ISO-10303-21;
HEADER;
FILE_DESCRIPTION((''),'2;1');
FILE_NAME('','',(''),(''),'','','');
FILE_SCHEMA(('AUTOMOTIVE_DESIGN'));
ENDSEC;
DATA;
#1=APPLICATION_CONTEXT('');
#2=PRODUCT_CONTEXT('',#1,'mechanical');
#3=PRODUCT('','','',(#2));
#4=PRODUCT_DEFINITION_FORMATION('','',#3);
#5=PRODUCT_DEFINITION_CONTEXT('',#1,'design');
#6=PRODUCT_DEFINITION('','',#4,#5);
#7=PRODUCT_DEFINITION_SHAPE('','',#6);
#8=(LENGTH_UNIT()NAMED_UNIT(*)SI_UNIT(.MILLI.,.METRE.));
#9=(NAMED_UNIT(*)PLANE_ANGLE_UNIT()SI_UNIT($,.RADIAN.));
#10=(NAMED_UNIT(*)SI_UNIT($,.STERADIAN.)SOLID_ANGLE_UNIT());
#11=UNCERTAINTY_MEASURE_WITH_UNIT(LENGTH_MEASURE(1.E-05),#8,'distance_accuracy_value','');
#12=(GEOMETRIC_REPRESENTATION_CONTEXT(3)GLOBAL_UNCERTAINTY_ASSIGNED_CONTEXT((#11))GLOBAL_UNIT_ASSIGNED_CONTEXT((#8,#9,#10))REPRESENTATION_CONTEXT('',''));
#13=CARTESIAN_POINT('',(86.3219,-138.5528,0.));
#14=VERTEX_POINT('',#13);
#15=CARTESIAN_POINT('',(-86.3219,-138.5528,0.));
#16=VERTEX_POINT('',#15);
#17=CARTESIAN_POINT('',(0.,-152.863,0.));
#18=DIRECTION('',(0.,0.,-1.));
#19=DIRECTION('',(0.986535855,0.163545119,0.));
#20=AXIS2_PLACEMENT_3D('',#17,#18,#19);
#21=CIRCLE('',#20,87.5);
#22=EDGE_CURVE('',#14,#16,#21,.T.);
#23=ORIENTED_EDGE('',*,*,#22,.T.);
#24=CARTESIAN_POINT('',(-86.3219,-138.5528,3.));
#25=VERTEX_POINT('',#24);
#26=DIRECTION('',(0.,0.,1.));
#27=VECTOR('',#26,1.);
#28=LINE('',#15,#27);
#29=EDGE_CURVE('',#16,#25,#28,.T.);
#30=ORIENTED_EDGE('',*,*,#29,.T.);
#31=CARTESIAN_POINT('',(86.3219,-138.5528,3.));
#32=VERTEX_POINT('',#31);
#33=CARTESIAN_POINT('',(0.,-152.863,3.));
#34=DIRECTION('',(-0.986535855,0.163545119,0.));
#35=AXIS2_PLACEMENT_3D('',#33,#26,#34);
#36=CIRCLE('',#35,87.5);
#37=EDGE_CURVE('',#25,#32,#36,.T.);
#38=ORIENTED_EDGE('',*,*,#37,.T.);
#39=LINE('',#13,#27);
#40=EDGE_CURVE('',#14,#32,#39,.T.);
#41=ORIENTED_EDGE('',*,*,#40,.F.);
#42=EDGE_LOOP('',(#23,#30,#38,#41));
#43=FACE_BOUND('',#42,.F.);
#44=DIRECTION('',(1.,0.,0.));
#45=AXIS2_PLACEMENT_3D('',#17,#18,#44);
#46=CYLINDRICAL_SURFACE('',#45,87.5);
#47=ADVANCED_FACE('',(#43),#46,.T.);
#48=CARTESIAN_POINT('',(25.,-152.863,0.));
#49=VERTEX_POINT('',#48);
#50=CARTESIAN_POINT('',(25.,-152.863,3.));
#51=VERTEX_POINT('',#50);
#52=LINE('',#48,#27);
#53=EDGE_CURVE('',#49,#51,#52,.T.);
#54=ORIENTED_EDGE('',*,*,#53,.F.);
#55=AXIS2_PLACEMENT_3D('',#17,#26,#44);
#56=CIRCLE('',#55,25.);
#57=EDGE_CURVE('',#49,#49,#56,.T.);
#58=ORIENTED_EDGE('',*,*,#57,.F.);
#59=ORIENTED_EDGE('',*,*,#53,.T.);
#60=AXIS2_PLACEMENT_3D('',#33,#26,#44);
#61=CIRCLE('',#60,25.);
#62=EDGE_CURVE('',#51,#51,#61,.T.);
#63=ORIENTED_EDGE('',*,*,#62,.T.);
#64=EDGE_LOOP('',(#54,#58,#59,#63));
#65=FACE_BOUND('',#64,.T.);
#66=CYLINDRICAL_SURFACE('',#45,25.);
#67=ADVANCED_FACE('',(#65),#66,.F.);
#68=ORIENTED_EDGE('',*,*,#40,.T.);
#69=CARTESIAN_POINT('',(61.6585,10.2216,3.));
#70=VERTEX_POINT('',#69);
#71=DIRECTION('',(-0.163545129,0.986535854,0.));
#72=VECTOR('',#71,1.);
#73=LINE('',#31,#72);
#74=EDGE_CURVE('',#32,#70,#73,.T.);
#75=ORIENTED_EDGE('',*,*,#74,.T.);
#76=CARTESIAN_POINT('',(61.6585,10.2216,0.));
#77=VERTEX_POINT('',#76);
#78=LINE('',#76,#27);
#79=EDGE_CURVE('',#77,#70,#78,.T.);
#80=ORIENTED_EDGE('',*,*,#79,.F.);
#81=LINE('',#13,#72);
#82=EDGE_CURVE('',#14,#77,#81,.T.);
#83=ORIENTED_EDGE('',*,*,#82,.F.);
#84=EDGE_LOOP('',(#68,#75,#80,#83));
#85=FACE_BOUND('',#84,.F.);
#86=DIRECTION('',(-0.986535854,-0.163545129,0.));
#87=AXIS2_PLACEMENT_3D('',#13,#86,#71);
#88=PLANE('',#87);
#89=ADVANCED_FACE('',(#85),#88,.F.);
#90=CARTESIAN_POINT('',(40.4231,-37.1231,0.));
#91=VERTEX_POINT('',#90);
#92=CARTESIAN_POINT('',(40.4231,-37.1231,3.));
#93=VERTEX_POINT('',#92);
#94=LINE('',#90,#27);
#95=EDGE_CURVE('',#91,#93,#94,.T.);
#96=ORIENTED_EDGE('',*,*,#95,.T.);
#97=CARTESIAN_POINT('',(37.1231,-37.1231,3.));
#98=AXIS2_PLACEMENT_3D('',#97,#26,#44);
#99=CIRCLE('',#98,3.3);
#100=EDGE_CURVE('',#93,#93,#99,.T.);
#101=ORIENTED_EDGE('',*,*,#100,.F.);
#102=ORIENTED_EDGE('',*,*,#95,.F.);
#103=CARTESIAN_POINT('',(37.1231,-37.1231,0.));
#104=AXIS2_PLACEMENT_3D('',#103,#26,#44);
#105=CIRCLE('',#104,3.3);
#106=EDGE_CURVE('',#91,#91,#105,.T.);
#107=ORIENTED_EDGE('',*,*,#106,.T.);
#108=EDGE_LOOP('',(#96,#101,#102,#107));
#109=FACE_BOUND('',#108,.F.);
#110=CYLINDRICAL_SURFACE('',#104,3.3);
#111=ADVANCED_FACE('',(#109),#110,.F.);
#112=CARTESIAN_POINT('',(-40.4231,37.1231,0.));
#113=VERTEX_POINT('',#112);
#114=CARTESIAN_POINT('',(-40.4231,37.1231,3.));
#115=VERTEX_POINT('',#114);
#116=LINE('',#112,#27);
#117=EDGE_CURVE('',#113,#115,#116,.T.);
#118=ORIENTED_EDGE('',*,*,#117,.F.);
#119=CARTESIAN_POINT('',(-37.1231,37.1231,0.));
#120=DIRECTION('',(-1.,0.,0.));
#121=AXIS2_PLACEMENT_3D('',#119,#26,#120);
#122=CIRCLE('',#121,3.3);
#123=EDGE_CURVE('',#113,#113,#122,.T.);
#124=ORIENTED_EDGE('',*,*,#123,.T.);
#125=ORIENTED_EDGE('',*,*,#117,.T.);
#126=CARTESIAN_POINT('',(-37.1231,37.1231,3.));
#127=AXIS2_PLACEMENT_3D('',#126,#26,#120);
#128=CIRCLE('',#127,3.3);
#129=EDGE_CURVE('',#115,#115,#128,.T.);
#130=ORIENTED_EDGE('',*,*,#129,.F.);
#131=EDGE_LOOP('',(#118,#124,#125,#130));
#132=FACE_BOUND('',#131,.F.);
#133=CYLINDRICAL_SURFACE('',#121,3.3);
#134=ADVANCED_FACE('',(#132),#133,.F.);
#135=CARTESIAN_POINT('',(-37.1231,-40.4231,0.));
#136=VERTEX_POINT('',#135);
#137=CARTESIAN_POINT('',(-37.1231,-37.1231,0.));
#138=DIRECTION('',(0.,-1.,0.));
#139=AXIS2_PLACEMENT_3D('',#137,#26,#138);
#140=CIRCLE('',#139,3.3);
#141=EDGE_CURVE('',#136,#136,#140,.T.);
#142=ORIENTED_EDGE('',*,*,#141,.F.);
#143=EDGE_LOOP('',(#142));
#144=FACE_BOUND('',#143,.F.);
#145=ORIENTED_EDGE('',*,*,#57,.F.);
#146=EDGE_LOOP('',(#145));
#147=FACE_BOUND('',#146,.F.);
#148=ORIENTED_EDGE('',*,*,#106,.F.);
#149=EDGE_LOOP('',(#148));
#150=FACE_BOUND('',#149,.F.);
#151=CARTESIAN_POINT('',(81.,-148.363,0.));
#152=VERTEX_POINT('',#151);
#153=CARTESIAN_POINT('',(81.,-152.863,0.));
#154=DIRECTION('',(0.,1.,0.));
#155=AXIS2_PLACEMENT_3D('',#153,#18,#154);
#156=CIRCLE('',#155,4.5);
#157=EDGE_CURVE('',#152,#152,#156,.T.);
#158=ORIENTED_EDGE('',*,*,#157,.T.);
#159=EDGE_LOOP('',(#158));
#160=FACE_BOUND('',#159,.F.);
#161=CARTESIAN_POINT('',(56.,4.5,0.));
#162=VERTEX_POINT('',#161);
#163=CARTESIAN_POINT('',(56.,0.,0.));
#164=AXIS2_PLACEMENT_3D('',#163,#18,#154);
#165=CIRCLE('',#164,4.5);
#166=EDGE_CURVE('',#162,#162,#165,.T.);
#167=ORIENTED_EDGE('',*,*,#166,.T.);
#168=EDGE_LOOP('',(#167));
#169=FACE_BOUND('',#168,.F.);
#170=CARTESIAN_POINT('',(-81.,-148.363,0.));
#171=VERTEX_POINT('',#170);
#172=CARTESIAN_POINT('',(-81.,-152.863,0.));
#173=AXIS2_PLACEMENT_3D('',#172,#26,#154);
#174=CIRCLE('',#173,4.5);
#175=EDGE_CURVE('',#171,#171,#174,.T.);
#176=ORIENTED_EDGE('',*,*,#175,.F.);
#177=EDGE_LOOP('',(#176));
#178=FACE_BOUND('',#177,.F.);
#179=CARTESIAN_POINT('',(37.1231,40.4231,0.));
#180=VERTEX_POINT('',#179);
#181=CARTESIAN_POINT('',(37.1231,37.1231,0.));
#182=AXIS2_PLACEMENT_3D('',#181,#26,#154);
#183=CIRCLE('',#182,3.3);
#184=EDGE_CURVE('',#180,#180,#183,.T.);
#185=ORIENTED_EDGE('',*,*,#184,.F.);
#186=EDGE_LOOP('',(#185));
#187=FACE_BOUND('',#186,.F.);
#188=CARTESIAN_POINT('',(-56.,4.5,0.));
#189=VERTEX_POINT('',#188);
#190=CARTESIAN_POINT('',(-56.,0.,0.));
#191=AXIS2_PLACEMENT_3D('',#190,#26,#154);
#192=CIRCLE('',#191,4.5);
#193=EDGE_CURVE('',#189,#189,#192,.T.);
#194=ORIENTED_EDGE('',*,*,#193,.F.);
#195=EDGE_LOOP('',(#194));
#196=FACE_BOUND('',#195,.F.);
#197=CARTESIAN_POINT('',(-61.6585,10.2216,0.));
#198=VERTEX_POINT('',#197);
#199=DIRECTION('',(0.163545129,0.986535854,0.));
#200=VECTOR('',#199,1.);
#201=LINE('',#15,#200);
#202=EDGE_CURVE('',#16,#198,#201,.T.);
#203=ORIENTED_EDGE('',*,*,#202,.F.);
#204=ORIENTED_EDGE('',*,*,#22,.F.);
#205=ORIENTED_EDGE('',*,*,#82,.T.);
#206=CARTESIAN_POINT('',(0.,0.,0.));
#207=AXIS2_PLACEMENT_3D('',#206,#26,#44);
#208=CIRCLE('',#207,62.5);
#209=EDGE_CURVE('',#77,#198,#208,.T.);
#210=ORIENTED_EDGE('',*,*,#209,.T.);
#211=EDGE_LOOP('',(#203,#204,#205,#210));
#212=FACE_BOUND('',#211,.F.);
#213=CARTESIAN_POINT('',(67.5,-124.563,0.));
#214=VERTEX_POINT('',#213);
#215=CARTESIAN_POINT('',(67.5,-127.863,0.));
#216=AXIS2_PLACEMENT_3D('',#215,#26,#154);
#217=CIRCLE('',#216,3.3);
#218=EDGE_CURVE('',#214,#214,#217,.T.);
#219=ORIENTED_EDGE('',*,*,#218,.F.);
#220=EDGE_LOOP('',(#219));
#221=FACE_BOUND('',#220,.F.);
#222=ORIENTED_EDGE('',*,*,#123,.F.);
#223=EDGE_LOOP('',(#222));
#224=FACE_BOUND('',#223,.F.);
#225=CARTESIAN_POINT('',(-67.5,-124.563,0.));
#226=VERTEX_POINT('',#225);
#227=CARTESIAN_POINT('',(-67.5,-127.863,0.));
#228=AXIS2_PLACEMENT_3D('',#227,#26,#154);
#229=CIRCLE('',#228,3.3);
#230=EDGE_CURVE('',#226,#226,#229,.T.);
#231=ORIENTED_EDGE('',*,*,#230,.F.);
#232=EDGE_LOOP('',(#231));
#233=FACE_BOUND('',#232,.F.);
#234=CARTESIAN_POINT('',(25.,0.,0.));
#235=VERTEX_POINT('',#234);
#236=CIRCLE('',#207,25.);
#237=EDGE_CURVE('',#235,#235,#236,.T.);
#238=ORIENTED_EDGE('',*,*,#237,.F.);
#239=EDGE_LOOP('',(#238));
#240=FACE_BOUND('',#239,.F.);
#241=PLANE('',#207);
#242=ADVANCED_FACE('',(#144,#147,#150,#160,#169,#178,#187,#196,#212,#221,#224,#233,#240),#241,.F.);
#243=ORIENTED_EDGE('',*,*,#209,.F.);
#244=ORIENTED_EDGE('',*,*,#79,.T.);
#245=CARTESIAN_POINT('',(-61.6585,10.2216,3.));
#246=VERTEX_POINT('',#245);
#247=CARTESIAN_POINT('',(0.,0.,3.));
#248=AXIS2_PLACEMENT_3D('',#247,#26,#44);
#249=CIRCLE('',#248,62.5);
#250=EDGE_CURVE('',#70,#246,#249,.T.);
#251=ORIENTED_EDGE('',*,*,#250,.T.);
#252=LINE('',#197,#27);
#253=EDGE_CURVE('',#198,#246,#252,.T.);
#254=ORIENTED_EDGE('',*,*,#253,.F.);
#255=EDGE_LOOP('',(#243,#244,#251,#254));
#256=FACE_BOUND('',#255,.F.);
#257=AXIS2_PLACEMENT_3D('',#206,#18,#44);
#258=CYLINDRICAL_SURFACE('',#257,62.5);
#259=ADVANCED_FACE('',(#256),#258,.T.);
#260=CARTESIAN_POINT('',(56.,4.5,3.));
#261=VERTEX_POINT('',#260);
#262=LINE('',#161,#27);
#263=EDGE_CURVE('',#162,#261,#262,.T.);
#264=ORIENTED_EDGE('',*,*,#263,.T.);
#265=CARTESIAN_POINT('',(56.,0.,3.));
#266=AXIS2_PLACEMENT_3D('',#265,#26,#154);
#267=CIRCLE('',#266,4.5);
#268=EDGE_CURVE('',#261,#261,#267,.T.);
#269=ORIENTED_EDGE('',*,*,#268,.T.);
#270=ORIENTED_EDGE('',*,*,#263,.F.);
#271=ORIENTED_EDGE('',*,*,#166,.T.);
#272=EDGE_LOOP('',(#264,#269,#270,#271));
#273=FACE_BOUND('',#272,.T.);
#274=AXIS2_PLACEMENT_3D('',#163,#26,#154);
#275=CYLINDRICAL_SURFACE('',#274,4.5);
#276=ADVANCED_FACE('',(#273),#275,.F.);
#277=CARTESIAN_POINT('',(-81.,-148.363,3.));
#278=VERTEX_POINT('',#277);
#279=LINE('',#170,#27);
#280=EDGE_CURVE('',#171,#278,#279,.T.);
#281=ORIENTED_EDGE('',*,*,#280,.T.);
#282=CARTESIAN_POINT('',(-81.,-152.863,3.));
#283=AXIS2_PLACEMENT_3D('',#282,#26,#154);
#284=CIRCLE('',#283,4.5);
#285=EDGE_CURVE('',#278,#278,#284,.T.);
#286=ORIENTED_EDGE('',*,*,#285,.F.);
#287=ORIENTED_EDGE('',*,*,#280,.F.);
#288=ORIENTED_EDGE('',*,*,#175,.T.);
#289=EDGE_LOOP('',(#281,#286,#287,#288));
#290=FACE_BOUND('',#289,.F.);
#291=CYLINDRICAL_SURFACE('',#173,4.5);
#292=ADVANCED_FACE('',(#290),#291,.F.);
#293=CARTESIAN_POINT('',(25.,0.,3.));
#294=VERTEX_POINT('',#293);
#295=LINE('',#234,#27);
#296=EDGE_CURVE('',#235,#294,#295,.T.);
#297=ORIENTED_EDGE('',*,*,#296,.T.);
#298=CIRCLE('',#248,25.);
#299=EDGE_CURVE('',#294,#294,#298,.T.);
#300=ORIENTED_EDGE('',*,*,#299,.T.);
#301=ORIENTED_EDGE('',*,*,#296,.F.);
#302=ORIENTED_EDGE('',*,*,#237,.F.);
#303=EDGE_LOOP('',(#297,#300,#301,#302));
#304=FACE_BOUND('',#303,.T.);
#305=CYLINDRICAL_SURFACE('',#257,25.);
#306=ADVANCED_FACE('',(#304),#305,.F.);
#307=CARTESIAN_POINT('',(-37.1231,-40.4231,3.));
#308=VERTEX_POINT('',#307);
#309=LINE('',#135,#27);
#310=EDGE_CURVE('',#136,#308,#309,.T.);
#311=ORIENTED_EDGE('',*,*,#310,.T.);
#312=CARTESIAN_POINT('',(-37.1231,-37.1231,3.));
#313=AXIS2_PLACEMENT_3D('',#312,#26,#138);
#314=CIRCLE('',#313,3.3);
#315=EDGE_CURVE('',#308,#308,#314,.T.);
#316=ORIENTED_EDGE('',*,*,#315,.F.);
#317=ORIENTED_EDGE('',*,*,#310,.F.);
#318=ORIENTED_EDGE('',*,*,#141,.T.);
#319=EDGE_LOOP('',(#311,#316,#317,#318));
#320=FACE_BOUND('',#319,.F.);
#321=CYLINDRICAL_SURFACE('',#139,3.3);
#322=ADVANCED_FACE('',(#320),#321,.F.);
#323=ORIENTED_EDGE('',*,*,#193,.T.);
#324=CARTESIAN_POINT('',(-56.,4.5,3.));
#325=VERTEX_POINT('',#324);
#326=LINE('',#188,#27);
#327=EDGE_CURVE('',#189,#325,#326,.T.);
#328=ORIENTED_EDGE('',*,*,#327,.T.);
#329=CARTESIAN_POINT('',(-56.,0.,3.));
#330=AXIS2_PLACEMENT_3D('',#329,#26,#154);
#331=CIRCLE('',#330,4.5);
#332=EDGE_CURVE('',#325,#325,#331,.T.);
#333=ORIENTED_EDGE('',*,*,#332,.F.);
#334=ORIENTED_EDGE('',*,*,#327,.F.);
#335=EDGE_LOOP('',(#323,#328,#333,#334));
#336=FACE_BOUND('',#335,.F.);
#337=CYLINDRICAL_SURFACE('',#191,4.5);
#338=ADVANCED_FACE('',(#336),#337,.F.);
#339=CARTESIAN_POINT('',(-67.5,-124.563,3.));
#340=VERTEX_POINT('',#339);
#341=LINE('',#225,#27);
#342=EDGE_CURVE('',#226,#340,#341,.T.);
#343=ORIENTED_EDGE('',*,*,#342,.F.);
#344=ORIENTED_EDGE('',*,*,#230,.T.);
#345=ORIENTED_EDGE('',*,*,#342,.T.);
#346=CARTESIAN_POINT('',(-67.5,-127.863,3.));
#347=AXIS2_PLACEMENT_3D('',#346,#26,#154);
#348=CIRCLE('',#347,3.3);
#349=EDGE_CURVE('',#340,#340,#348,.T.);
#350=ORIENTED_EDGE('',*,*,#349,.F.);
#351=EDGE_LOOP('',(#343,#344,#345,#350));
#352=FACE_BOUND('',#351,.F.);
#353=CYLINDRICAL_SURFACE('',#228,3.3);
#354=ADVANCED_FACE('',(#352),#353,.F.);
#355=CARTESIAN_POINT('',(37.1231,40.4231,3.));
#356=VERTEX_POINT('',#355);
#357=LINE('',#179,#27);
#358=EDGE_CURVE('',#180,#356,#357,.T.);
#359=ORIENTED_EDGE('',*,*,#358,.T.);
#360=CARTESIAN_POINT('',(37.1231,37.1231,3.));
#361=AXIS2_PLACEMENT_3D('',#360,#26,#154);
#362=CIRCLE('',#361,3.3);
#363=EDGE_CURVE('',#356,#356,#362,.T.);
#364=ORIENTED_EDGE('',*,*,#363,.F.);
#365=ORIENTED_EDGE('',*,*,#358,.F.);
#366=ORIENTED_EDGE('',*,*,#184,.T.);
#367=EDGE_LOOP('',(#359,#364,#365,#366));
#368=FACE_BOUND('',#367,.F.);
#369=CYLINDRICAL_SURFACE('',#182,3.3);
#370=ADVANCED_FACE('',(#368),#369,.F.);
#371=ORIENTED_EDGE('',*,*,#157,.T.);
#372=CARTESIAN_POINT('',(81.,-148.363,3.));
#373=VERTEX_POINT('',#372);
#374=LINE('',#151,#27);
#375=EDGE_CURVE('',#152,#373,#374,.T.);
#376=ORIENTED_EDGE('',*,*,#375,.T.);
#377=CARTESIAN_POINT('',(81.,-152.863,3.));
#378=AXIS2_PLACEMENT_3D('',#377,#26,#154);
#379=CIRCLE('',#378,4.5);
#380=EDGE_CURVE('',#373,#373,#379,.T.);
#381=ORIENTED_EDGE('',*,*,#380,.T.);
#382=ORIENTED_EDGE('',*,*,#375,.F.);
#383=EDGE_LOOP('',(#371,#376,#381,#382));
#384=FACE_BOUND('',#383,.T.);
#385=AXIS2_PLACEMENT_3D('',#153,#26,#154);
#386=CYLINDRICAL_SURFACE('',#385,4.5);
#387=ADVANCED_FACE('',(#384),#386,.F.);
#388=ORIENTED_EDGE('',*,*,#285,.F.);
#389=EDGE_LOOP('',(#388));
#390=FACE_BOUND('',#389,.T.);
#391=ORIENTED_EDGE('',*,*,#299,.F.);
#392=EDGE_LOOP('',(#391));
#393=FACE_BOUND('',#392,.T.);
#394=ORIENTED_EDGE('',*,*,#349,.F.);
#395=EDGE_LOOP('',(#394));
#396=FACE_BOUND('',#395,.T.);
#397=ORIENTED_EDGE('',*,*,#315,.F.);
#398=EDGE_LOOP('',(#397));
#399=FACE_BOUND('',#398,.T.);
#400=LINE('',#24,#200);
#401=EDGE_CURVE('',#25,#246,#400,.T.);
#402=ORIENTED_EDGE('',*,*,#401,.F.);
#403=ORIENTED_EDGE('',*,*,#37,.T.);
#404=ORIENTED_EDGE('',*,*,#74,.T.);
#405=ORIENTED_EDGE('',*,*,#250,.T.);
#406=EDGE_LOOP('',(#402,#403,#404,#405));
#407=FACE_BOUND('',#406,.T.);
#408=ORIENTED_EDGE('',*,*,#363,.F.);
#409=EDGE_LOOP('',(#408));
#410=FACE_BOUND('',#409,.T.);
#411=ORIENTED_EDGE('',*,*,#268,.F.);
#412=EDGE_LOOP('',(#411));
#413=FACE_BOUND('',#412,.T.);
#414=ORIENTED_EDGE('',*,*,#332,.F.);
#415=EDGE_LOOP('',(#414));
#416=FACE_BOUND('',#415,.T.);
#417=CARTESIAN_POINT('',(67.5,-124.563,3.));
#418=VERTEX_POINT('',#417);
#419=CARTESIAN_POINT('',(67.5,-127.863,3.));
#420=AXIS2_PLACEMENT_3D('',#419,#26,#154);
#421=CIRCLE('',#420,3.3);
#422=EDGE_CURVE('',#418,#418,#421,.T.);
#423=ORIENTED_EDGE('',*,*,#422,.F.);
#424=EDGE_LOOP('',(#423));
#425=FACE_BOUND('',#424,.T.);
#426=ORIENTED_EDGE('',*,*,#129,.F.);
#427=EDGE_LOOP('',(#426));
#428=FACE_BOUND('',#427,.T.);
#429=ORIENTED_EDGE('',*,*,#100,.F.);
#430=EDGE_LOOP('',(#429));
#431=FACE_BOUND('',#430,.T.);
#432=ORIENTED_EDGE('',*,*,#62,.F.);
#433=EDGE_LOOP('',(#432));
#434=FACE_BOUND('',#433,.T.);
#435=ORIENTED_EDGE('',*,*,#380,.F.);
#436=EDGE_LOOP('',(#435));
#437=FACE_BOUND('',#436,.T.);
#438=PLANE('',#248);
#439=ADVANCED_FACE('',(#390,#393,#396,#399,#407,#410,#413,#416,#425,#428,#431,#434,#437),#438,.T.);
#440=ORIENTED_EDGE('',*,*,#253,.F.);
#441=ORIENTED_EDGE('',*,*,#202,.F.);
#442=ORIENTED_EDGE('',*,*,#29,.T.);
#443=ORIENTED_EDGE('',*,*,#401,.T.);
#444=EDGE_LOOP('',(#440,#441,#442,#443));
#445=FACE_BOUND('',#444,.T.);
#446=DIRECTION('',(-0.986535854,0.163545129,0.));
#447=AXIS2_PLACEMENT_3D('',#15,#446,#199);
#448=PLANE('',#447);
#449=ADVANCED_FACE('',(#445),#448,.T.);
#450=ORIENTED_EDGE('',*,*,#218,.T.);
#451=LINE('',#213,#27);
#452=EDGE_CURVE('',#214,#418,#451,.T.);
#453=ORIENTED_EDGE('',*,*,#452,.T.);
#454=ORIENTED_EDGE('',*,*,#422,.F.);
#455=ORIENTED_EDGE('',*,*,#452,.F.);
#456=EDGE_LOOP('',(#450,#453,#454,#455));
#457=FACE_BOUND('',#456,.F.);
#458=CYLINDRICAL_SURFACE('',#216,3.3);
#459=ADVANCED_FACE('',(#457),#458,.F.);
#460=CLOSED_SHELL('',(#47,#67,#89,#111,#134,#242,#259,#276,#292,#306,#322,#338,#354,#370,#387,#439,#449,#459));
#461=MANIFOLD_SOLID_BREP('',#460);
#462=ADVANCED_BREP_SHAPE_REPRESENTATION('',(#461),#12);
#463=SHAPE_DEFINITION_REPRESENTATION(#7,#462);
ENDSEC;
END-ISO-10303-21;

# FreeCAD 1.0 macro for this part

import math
import FreeCAD as App
import Part
import Sketcher

doc = App.newDocument("Part")
body = doc.addObject("PartDesign::Body", "Body")

sketch1 = body.newObject("Sketcher::SketchObject", "Sketch")
sketch1.AttachmentSupport = (doc.getObject("XY_Plane"), [""])
sketch1.MapMode = "FlatFace"
sketch1.addGeometry(Part.ArcOfCircle(Part.Circle(App.Vector(0, 0, 0), App.Vector(0, 0, 1), 62.5), math.radians(9.412754), math.radians(170.587246)), False)
sketch1.addGeometry(Part.LineSegment(App.Vector(-61.6585, 10.2216, 0), App.Vector(-86.3219, -138.5528, 0)), False)
sketch1.addGeometry(Part.ArcOfCircle(Part.Circle(App.Vector(0, -152.863, 0), App.Vector(0, 0, 1), 87.5), math.radians(170.587272), math.radians(369.412728)), False)
sketch1.addGeometry(Part.LineSegment(App.Vector(86.3219, -138.5528, 0), App.Vector(61.6585, 10.2216, 0)), False)
sketch1.addGeometry(Part.Circle(App.Vector(0, 0, 0), App.Vector(0, 0, 1), 25), False)
sketch1.addGeometry(Part.Circle(App.Vector(0, -152.863, 0), App.Vector(0, 0, 1), 25), False)
sketch1.addConstraint(Sketcher.Constraint("Tangent", 0, 2, 1, 1))
sketch1.addConstraint(Sketcher.Constraint("Tangent", 1, 2, 2, 1))
sketch1.addConstraint(Sketcher.Constraint("Tangent", 2, 2, 3, 1))
sketch1.addConstraint(Sketcher.Constraint("Tangent", 3, 2, 0, 1))
sketch1.addConstraint(Sketcher.Constraint("Coincident", 0, 3, -1, 1))
sketch1.addConstraint(Sketcher.Constraint("Coincident", 4, 3, -1, 1))
sketch1.addConstraint(Sketcher.Constraint("Coincident", 5, 3, 2, 3))
sketch1.addConstraint(Sketcher.Constraint("Equal", 4, 5))
sketch1.addConstraint(Sketcher.Constraint("PointOnObject", 2, 3, -2))
sketch1.addConstraint(Sketcher.Constraint("Diameter", 4, 50.0))
sketch1.addConstraint(Sketcher.Constraint("Radius", 0, 62.5))
sketch1.addConstraint(Sketcher.Constraint("Radius", 2, 87.5))
sketch1.addConstraint(Sketcher.Constraint("DistanceY", 2, 3, -1, 1, 152.863))
pad1 = body.newObject("PartDesign::Pad", "Pad")
pad1.Profile = sketch1
pad1.Length = 3

sketch2 = body.newObject("Sketcher::SketchObject", "Sketch001")
sketch2.AttachmentSupport = (doc.getObject("XY_Plane"), [""])
sketch2.MapMode = "FlatFace"
sketch2.addGeometry(Part.Circle(App.Vector(67.5, -127.863, 0), App.Vector(0, 0, 1), 3.3), False)
sketch2.addGeometry(Part.Circle(App.Vector(-67.5, -127.863, 0), App.Vector(0, 0, 1), 3.3), False)
sketch2.addConstraint(Sketcher.Constraint("Equal", 0, 1))
sketch2.addConstraint(Sketcher.Constraint("Symmetric", 0, 3, 1, 3, -2))
sketch2.addConstraint(Sketcher.Constraint("Diameter", 0, 6.6))
sketch2.addConstraint(Sketcher.Constraint("DistanceX", 1, 3, 0, 3, 135.0))
sketch2.addConstraint(Sketcher.Constraint("DistanceY", 0, 3, -1, 1, 127.863))
doc.recompute()
hole = body.newObject("PartDesign::Hole", "Hole")
hole.Profile = sketch2
hole.ThreadType = "None"
hole.Diameter = 6.6
hole.DepthType = "ThroughAll"
hole.Reversed = True

sketch3 = body.newObject("Sketcher::SketchObject", "Sketch002")
sketch3.AttachmentSupport = (doc.getObject("XY_Plane"), [""])
sketch3.MapMode = "FlatFace"
sketch3.addGeometry(Part.Circle(App.Vector(37.1231, 37.1231, 0), App.Vector(0, 0, 1), 3.3), False)
sketch3.addConstraint(Sketcher.Constraint("Diameter", 0, 6.6))
sketch3.addConstraint(Sketcher.Constraint("DistanceX", -1, 1, 0, 3, 37.123))
sketch3.addConstraint(Sketcher.Constraint("DistanceY", -1, 1, 0, 3, 37.123))
doc.recompute()
hole2 = body.newObject("PartDesign::Hole", "Hole001")
hole2.Profile = sketch3
hole2.ThreadType = "None"
hole2.Diameter = 6.6
hole2.DepthType = "ThroughAll"
hole2.Reversed = True
doc.recompute()

polarpattern = body.newObject("PartDesign::PolarPattern", "PolarPattern")
polarpattern.Originals = [hole2]
polarpattern.Axis = (doc.getObject("Z_Axis"), [""])
polarpattern.Angle = 360
polarpattern.Occurrences = 4
body.Tip = polarpattern

sketch4 = body.newObject("Sketcher::SketchObject", "Sketch003")
sketch4.AttachmentSupport = (doc.getObject("XY_Plane"), [""])
sketch4.MapMode = "FlatFace"
sketch4.addGeometry(Part.Circle(App.Vector(-56, 0, 0), App.Vector(0, 0, 1), 4.5), False)
sketch4.addGeometry(Part.Circle(App.Vector(-81, -152.863, 0), App.Vector(0, 0, 1), 4.5), False)
sketch4.addConstraint(Sketcher.Constraint("Equal", 0, 1))
sketch4.addConstraint(Sketcher.Constraint("PointOnObject", 0, 3, -1))
sketch4.addConstraint(Sketcher.Constraint("Diameter", 0, 9.0))
sketch4.addConstraint(Sketcher.Constraint("DistanceX", 0, 3, -1, 1, 56.0))
sketch4.addConstraint(Sketcher.Constraint("DistanceX", 1, 3, -1, 1, 81.0))
sketch4.addConstraint(Sketcher.Constraint("DistanceY", 1, 3, -1, 1, 152.863))
doc.recompute()
hole3 = body.newObject("PartDesign::Hole", "Hole002")
hole3.Profile = sketch4
hole3.ThreadType = "None"
hole3.Diameter = 9
hole3.DepthType = "ThroughAll"
hole3.Reversed = True
doc.recompute()

mirrored = body.newObject("PartDesign::Mirrored", "Mirrored")
mirrored.Originals = [hole3]
mirrored.MirrorPlane = (doc.getObject("YZ_Plane"), [""])
body.Tip = mirrored

doc.recompute()
